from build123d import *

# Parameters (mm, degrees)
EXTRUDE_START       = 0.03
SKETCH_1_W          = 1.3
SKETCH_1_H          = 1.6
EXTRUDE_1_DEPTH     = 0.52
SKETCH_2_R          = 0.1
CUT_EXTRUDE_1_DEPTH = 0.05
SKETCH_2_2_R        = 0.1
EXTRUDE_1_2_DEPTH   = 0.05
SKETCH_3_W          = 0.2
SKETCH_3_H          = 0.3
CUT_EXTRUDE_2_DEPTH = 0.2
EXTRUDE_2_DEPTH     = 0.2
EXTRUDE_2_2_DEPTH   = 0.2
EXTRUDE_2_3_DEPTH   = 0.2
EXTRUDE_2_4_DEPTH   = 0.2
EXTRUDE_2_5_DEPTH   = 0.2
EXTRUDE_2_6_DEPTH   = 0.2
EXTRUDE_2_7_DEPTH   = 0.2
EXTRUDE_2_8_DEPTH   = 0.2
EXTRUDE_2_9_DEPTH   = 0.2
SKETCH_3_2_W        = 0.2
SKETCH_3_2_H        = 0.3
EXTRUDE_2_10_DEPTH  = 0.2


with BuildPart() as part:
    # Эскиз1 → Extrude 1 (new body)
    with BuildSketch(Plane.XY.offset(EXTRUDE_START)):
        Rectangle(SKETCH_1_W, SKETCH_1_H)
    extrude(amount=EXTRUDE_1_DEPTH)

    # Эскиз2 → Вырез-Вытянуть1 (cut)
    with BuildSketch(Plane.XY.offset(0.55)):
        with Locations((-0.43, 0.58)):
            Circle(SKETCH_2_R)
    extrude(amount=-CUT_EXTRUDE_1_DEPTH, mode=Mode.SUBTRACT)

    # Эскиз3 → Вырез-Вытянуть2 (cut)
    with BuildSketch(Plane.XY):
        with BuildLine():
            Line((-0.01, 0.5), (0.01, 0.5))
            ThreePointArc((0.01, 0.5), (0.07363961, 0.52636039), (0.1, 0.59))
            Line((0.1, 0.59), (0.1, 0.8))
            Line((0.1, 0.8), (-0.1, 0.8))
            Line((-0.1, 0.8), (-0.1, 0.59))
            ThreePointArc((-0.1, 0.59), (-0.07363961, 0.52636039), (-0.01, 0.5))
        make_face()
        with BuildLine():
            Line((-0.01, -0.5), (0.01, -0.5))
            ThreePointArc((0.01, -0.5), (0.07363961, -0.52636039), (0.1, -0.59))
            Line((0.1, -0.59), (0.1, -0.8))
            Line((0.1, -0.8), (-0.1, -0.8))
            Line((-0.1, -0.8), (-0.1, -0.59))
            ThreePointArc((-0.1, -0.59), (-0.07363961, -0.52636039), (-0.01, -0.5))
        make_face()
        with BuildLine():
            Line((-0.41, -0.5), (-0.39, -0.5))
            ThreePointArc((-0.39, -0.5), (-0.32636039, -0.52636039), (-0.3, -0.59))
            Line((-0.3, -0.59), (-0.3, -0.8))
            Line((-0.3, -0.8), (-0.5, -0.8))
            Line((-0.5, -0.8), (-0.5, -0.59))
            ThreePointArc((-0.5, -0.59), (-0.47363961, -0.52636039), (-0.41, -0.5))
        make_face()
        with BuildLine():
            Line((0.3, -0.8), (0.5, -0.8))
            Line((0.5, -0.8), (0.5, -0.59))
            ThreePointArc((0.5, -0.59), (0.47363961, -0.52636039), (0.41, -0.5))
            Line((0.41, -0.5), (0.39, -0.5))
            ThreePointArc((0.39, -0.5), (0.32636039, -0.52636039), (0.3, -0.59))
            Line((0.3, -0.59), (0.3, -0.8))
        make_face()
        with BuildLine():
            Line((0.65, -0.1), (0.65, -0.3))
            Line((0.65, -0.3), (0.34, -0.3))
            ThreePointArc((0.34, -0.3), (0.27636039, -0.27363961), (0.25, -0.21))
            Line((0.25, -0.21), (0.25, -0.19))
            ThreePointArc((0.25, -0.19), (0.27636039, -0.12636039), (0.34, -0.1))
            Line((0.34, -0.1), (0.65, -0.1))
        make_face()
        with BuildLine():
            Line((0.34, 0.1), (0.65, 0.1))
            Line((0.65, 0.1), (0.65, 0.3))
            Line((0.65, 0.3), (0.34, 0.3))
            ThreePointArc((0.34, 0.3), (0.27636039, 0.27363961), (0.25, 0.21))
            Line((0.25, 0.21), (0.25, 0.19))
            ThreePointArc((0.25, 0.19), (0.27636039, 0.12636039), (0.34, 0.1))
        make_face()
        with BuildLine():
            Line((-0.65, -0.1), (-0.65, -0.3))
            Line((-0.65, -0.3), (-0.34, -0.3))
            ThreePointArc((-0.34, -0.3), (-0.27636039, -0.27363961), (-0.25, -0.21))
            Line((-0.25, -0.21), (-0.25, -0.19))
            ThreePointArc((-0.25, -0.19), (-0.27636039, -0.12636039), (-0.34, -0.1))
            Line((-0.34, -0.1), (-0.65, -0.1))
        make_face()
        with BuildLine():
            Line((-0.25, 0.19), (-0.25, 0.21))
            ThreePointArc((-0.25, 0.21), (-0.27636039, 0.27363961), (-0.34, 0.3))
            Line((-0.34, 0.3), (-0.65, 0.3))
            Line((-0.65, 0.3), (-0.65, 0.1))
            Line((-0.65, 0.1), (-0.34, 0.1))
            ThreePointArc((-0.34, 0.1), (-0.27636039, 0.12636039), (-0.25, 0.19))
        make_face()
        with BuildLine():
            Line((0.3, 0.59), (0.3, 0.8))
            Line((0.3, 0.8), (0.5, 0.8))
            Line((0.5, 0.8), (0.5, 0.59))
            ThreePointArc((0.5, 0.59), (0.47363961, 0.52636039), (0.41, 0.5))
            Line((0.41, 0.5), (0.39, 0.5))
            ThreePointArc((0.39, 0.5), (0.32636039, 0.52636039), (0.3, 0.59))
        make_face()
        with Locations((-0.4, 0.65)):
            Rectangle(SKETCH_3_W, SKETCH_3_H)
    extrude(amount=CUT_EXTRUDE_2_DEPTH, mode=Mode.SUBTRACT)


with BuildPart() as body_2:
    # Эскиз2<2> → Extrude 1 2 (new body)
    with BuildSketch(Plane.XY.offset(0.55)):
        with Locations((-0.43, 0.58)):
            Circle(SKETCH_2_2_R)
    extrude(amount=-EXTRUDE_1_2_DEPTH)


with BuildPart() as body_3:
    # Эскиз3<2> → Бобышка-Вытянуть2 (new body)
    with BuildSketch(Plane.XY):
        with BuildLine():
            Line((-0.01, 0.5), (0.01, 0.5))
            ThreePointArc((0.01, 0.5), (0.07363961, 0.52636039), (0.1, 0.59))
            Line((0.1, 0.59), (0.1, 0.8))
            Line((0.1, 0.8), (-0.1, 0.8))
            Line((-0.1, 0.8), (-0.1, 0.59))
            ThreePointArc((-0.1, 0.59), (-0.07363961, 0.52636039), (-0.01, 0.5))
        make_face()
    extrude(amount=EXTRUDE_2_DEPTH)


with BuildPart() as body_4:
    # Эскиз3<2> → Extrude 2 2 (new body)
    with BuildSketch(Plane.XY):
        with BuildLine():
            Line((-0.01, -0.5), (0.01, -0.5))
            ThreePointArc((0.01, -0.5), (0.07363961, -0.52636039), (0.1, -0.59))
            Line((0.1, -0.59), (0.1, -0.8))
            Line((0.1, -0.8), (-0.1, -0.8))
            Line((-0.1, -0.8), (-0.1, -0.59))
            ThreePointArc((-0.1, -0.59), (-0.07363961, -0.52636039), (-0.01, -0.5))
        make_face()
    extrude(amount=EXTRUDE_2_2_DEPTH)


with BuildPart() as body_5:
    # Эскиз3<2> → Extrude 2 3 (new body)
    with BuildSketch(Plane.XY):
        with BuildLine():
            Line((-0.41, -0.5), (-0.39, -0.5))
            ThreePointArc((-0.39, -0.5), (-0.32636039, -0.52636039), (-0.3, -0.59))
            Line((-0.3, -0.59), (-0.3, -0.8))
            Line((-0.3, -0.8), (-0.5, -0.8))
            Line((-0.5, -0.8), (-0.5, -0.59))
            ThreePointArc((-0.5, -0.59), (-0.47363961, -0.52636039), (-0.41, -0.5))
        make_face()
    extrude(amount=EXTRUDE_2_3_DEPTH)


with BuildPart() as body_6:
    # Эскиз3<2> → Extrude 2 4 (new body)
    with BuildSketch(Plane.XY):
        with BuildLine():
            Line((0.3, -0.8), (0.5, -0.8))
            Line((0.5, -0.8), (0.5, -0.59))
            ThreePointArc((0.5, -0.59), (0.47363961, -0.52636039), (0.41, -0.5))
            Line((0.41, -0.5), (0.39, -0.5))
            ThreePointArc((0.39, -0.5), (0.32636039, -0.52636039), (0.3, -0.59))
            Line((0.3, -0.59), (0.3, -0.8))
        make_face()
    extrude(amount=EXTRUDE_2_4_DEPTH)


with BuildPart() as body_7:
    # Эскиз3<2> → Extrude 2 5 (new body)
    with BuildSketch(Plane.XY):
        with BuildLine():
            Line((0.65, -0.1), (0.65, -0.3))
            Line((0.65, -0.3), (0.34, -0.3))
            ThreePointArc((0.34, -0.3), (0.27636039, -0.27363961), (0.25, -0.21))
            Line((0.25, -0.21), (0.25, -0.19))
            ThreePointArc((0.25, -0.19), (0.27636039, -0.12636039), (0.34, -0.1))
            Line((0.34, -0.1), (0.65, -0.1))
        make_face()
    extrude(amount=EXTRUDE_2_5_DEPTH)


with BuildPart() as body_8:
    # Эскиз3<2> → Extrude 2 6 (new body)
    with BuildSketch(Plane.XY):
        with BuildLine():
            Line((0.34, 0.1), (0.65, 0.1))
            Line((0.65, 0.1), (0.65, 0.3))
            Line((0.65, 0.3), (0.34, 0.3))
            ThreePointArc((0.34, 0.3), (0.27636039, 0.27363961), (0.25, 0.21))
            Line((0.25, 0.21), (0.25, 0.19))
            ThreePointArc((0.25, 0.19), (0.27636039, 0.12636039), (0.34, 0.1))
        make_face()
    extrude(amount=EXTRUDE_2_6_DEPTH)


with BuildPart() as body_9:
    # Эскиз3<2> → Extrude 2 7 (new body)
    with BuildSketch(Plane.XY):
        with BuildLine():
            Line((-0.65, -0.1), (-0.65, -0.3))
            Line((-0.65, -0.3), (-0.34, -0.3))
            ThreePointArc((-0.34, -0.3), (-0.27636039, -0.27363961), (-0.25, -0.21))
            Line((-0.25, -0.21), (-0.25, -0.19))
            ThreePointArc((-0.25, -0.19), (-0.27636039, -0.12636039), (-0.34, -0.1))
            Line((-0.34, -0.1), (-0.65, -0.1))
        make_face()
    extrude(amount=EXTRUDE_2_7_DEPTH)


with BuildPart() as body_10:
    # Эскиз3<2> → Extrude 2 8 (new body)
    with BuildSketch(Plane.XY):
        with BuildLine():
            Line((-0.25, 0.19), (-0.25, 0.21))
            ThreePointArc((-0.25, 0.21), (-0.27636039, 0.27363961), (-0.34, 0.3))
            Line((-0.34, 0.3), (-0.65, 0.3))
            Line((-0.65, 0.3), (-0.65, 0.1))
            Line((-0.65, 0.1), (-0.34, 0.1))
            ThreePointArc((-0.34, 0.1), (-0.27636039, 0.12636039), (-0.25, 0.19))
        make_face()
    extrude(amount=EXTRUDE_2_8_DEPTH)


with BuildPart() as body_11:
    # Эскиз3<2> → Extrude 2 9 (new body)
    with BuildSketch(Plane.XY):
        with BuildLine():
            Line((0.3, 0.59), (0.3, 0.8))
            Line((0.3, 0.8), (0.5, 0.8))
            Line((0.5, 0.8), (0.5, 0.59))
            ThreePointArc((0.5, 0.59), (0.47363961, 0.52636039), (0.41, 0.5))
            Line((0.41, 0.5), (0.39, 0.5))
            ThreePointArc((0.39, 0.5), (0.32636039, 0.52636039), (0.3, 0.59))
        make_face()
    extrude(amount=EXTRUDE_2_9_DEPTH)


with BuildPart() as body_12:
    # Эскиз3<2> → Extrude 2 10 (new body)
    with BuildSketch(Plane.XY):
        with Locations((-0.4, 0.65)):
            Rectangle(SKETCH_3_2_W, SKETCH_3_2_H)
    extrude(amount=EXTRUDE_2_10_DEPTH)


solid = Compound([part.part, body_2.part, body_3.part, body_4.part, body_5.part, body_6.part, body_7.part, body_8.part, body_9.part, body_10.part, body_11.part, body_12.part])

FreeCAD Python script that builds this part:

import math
import FreeCAD as App
import Part
import Sketcher
Q = App.Units.Quantity


def add_polygon(sketch, points):
    """Adds a closed chain of lines whose ends are joined by coincident constraints."""
    first, n = sketch.GeometryCount, len(points)
    for a, b in zip(points, points[1:] + points[:1]):
        sketch.addGeometry(Part.LineSegment(App.Vector(*a, 0), App.Vector(*b, 0)), False)
    for i in range(n):
        sketch.addConstraint(Sketcher.Constraint("Coincident", first + i, 2, first + (i + 1) % n, 1))

doc = App.newDocument("Part")
params = doc.addObject("Spreadsheet::Sheet", "Params")
for row, (alias, value) in enumerate([
    ("sketch1_width", "1.3 mm"),
    ("sketch1_height", "1.6 mm"),
    ("pad1_length", "0.52 mm"),
    ("sketch2_diameter", "0.2 mm"),
    ("pocket1_length", "0.05 mm"),
    ("sketch3_radius", "0.09 mm"),
    ("sketch3_width", "0.2 mm"),
    ("sketch3_height", "0.3 mm"),
    ("sketch3_width2", "0.31 mm"),
    ("pocket2_length", "0.2 mm"),
    ("sketch4_diameter", "0.2 mm"),
    ("pad2_length", "0.05 mm"),
    ("sketch5_radius", "0.09 mm"),
    ("sketch5_width", "0.2 mm"),
    ("sketch5_height", "0.21 mm"),
    ("pad3_length", "0.2 mm"),
    ("sketch6_radius", "0.09 mm"),
    ("sketch6_width", "0.2 mm"),
    ("sketch6_height", "0.21 mm"),
    ("pad4_length", "0.2 mm"),
    ("sketch7_radius", "0.09 mm"),
    ("sketch7_width", "0.2 mm"),
    ("sketch7_height", "0.21 mm"),
    ("pad5_length", "0.2 mm"),
    ("sketch8_radius", "0.09 mm"),
    ("sketch8_width", "0.2 mm"),
    ("sketch8_height", "0.21 mm"),
    ("pad6_length", "0.2 mm"),
    ("sketch9_radius", "0.09 mm"),
    ("sketch9_height", "0.2 mm"),
    ("sketch9_width", "0.31 mm"),
    ("pad7_length", "0.2 mm"),
    ("sketch10_radius", "0.09 mm"),
    ("sketch10_height", "0.2 mm"),
    ("sketch10_width", "0.31 mm"),
    ("pad8_length", "0.2 mm"),
    ("sketch11_radius", "0.09 mm"),
    ("sketch11_height", "0.2 mm"),
    ("sketch11_width", "0.31 mm"),
    ("pad9_length", "0.2 mm"),
    ("sketch12_radius", "0.09 mm"),
    ("sketch12_height", "0.2 mm"),
    ("sketch12_width", "0.31 mm"),
    ("pad10_length", "0.2 mm"),
    ("sketch13_radius", "0.09 mm"),
    ("sketch13_width", "0.2 mm"),
    ("sketch13_height", "0.21 mm"),
    ("pad11_length", "0.2 mm"),
    ("sketch14_width", "0.2 mm"),
    ("sketch14_height", "0.3 mm"),
    ("pad12_length", "0.2 mm"),
], start=1):
    params.set(f"A{row}", alias)
    params.set(f"B{row}", "=" + value)
    params.setAlias(f"B{row}", alias)

body = doc.addObject("PartDesign::Body", "Body")

sketch1 = body.newObject("Sketcher::SketchObject", "Sketch")
sketch1.AttachmentSupport = (doc.getObject("XY_Plane"), [""])
sketch1.MapMode = "FlatFace"
sketch1.AttachmentOffset = App.Placement(App.Vector(0, 0, 0.03), App.Rotation())
add_polygon(sketch1, [(-0.7, 0.8), (-0.7, -0.8), (0.7, -0.8), (0.7, 0.8)])
sketch1.addConstraint(Sketcher.Constraint("Vertical", 0))
sketch1.addConstraint(Sketcher.Constraint("Horizontal", 1))
sketch1.addConstraint(Sketcher.Constraint("Vertical", 2))
sketch1.addConstraint(Sketcher.Constraint("Horizontal", 3))
sketch1.addConstraint(Sketcher.Constraint("Symmetric", 0, 2, 2, 2, -1, 1))
sketch1.addConstraint(Sketcher.Constraint("DistanceX", 1, 1, 1, 2, Q("1.3 mm")))
sketch1.addConstraint(Sketcher.Constraint("DistanceY", 0, 2, 0, 1, Q("1.6 mm")))
sketch1.setExpression("Constraints[9]", "Params.sketch1_width")
sketch1.setExpression("Constraints[10]", "Params.sketch1_height")
pad1 = body.newObject("PartDesign::Pad", "Pad")
pad1.Profile = sketch1
pad1.setExpression("Length", "Params.pad1_length")

sketch2 = body.newObject("Sketcher::SketchObject", "Sketch001")
sketch2.AttachmentSupport = (doc.getObject("XY_Plane"), [""])
sketch2.MapMode = "FlatFace"
sketch2.AttachmentOffset = App.Placement(App.Vector(0, 0, 0.55), App.Rotation())
sketch2.addGeometry(Part.Circle(App.Vector(-0.43, 0.58, 0), App.Vector(0, 0, 1), 0.1), False)
sketch2.addConstraint(Sketcher.Constraint("Diameter", 0, Q("0.2 mm")))
sketch2.addConstraint(Sketcher.Constraint("DistanceX", 0, 3, -1, 1, Q("0.43 mm")))
sketch2.addConstraint(Sketcher.Constraint("DistanceY", -1, 1, 0, 3, Q("0.58 mm")))
sketch2.setExpression("Constraints[0]", "Params.sketch2_diameter")
pocket1 = body.newObject("PartDesign::Pocket", "Pocket")
pocket1.Profile = sketch2
pocket1.setExpression("Length", "Params.pocket1_length")

sketch3 = body.newObject("Sketcher::SketchObject", "Sketch002")
sketch3.AttachmentSupport = (doc.getObject("XY_Plane"), [""])
sketch3.MapMode = "FlatFace"
sketch3.addGeometry(Part.LineSegment(App.Vector(-0.01, 0.5, 0), App.Vector(0.01, 0.5, 0)), False)
sketch3.addGeometry(Part.ArcOfCircle(Part.Circle(App.Vector(0.01, 0.59, 0), App.Vector(0, 0, 1), 0.09), math.radians(-90), math.radians(0)), False)
sketch3.addGeometry(Part.LineSegment(App.Vector(0.1, 0.59, 0), App.Vector(0.1, 0.8, 0)), False)
sketch3.addGeometry(Part.LineSegment(App.Vector(0.1, 0.8, 0), App.Vector(-0.1, 0.8, 0)), False)
sketch3.addGeometry(Part.LineSegment(App.Vector(-0.1, 0.8, 0), App.Vector(-0.1, 0.59, 0)), False)
sketch3.addGeometry(Part.ArcOfCircle(Part.Circle(App.Vector(-0.01, 0.59, 0), App.Vector(0, 0, 1), 0.09), math.radians(-180), math.radians(-90)), False)
sketch3.addGeometry(Part.LineSegment(App.Vector(0.01, -0.5, 0), App.Vector(-0.01, -0.5, 0)), False)
sketch3.addGeometry(Part.ArcOfCircle(Part.Circle(App.Vector(-0.01, -0.59, 0), App.Vector(0, 0, 1), 0.09), math.radians(90), math.radians(180)), False)
sketch3.addGeometry(Part.LineSegment(App.Vector(-0.1, -0.59, 0), App.Vector(-0.1, -0.8, 0)), False)
sketch3.addGeometry(Part.LineSegment(App.Vector(-0.1, -0.8, 0), App.Vector(0.1, -0.8, 0)), False)
sketch3.addGeometry(Part.LineSegment(App.Vector(0.1, -0.8, 0), App.Vector(0.1, -0.59, 0)), False)
sketch3.addGeometry(Part.ArcOfCircle(Part.Circle(App.Vector(0.01, -0.59, 0), App.Vector(0, 0, 1), 0.09), math.radians(0), math.radians(90)), False)
sketch3.addGeometry(Part.LineSegment(App.Vector(-0.39, -0.5, 0), App.Vector(-0.41, -0.5, 0)), False)
sketch3.addGeometry(Part.ArcOfCircle(Part.Circle(App.Vector(-0.41, -0.59, 0), App.Vector(0, 0, 1), 0.09), math.radians(90), math.radians(180)), False)
sketch3.addGeometry(Part.LineSegment(App.Vector(-0.5, -0.59, 0), App.Vector(-0.5, -0.8, 0)), False)
sketch3.addGeometry(Part.LineSegment(App.Vector(-0.5, -0.8, 0), App.Vector(-0.3, -0.8, 0)), False)
sketch3.addGeometry(Part.LineSegment(App.Vector(-0.3, -0.8, 0), App.Vector(-0.3, -0.59, 0)), False)
sketch3.addGeometry(Part.ArcOfCircle(Part.Circle(App.Vector(-0.39, -0.59, 0), App.Vector(0, 0, 1), 0.09), math.radians(0), math.radians(90)), False)
sketch3.addGeometry(Part.LineSegment(App.Vector(0.3, -0.8, 0), App.Vector(0.5, -0.8, 0)), False)
sketch3.addGeometry(Part.LineSegment(App.Vector(0.5, -0.8, 0), App.Vector(0.5, -0.59, 0)), False)
sketch3.addGeometry(Part.ArcOfCircle(Part.Circle(App.Vector(0.41, -0.59, 0), App.Vector(0, 0, 1), 0.09), math.radians(0), math.radians(90)), False)
sketch3.addGeometry(Part.LineSegment(App.Vector(0.41, -0.5, 0), App.Vector(0.39, -0.5, 0)), False)
sketch3.addGeometry(Part.ArcOfCircle(Part.Circle(App.Vector(0.39, -0.59, 0), App.Vector(0, 0, 1), 0.09), math.radians(90), math.radians(180)), False)
sketch3.addGeometry(Part.LineSegment(App.Vector(0.3, -0.59, 0), App.Vector(0.3, -0.8, 0)), False)
sketch3.addGeometry(Part.LineSegment(App.Vector(0.65, -0.3, 0), App.Vector(0.65, -0.1, 0)), False)
sketch3.addGeometry(Part.LineSegment(App.Vector(0.65, -0.1, 0), App.Vector(0.34, -0.1, 0)), False)
sketch3.addGeometry(Part.ArcOfCircle(Part.Circle(App.Vector(0.34, -0.19, 0), App.Vector(0, 0, 1), 0.09), math.radians(90), math.radians(180)), False)
sketch3.addGeometry(Part.LineSegment(App.Vector(0.25, -0.19, 0), App.Vector(0.25, -0.21, 0)), False)
sketch3.addGeometry(Part.ArcOfCircle(Part.Circle(App.Vector(0.34, -0.21, 0), App.Vector(0, 0, 1), 0.09), math.radians(-180), math.radians(-90)), False)
sketch3.addGeometry(Part.LineSegment(App.Vector(0.34, -0.3, 0), App.Vector(0.65, -0.3, 0)), False)
sketch3.addGeometry(Part.LineSegment(App.Vector(0.34, 0.1, 0), App.Vector(0.65, 0.1, 0)), False)
sketch3.addGeometry(Part.LineSegment(App.Vector(0.65, 0.1, 0), App.Vector(0.65, 0.3, 0)), False)
sketch3.addGeometry(Part.LineSegment(App.Vector(0.65, 0.3, 0), App.Vector(0.34, 0.3, 0)), False)
sketch3.addGeometry(Part.ArcOfCircle(Part.Circle(App.Vector(0.34, 0.21, 0), App.Vector(0, 0, 1), 0.09), math.radians(90), math.radians(180)), False)
sketch3.addGeometry(Part.LineSegment(App.Vector(0.25, 0.21, 0), App.Vector(0.25, 0.19, 0)), False)
sketch3.addGeometry(Part.ArcOfCircle(Part.Circle(App.Vector(0.34, 0.19, 0), App.Vector(0, 0, 1), 0.09), math.radians(-180), math.radians(-90)), False)
sketch3.addGeometry(Part.LineSegment(App.Vector(-0.65, -0.1, 0), App.Vector(-0.65, -0.3, 0)), False)
sketch3.addGeometry(Part.LineSegment(App.Vector(-0.65, -0.3, 0), App.Vector(-0.34, -0.3, 0)), False)
sketch3.addGeometry(Part.ArcOfCircle(Part.Circle(App.Vector(-0.34, -0.21, 0), App.Vector(0, 0, 1), 0.09), math.radians(-90), math.radians(0)), False)
sketch3.addGeometry(Part.LineSegment(App.Vector(-0.25, -0.21, 0), App.Vector(-0.25, -0.19, 0)), False)
sketch3.addGeometry(Part.ArcOfCircle(Part.Circle(App.Vector(-0.34, -0.19, 0), App.Vector(0, 0, 1), 0.09), math.radians(0), math.radians(90)), False)
sketch3.addGeometry(Part.LineSegment(App.Vector(-0.34, -0.1, 0), App.Vector(-0.65, -0.1, 0)), False)
sketch3.addGeometry(Part.LineSegment(App.Vector(-0.25, 0.19, 0), App.Vector(-0.25, 0.21, 0)), False)
sketch3.addGeometry(Part.ArcOfCircle(Part.Circle(App.Vector(-0.34, 0.21, 0), App.Vector(0, 0, 1), 0.09), math.radians(0), math.radians(90)), False)
sketch3.addGeometry(Part.LineSegment(App.Vector(-0.34, 0.3, 0), App.Vector(-0.65, 0.3, 0)), False)
sketch3.addGeometry(Part.LineSegment(App.Vector(-0.65, 0.3, 0), App.Vector(-0.65, 0.1, 0)), False)
sketch3.addGeometry(Part.LineSegment(App.Vector(-0.65, 0.1, 0), App.Vector(-0.34, 0.1, 0)), False)
sketch3.addGeometry(Part.ArcOfCircle(Part.Circle(App.Vector(-0.34, 0.19, 0), App.Vector(0, 0, 1), 0.09), math.radians(-90), math.radians(0)), False)
sketch3.addGeometry(Part.LineSegment(App.Vector(0.3, 0.8, 0), App.Vector(0.3, 0.59, 0)), False)
sketch3.addGeometry(Part.ArcOfCircle(Part.Circle(App.Vector(0.39, 0.59, 0), App.Vector(0, 0, 1), 0.09), math.radians(-180), math.radians(-90)), False)
sketch3.addGeometry(Part.LineSegment(App.Vector(0.39, 0.5, 0), App.Vector(0.41, 0.5, 0)), False)
sketch3.addGeometry(Part.ArcOfCircle(Part.Circle(App.Vector(0.41, 0.59, 0), App.Vector(0, 0, 1), 0.09), math.radians(-90), math.radians(0)), False)
sketch3.addGeometry(Part.LineSegment(App.Vector(0.5, 0.59, 0), App.Vector(0.5, 0.8, 0)), False)
sketch3.addGeometry(Part.LineSegment(App.Vector(0.5, 0.8, 0), App.Vector(0.3, 0.8, 0)), False)
add_polygon(sketch3, [(-0.5, 0.8), (-0.5, 0.5), (-0.3, 0.5), (-0.3, 0.8)])
sketch3.addConstraint(Sketcher.Constraint("Tangent", 0, 2, 1, 1))
sketch3.addConstraint(Sketcher.Constraint("Tangent", 1, 2, 2, 1))
sketch3.addConstraint(Sketcher.Constraint("Coincident", 2, 2, 3, 1))
sketch3.addConstraint(Sketcher.Constraint("Coincident", 3, 2, 4, 1))
sketch3.addConstraint(Sketcher.Constraint("Tangent", 4, 2, 5, 1))
sketch3.addConstraint(Sketcher.Constraint("Tangent", 5, 2, 0, 1))
sketch3.addConstraint(Sketcher.Constraint("Tangent", 6, 2, 7, 1))
sketch3.addConstraint(Sketcher.Constraint("Tangent", 7, 2, 8, 1))
sketch3.addConstraint(Sketcher.Constraint("Coincident", 8, 2, 9, 1))
sketch3.addConstraint(Sketcher.Constraint("Coincident", 9, 2, 10, 1))
sketch3.addConstraint(Sketcher.Constraint("Tangent", 10, 2, 11, 1))
sketch3.addConstraint(Sketcher.Constraint("Tangent", 11, 2, 6, 1))
sketch3.addConstraint(Sketcher.Constraint("Tangent", 12, 2, 13, 1))
sketch3.addConstraint(Sketcher.Constraint("Tangent", 13, 2, 14, 1))
sketch3.addConstraint(Sketcher.Constraint("Coincident", 14, 2, 15, 1))
sketch3.addConstraint(Sketcher.Constraint("Coincident", 15, 2, 16, 1))
sketch3.addConstraint(Sketcher.Constraint("Tangent", 16, 2, 17, 1))
sketch3.addConstraint(Sketcher.Constraint("Tangent", 17, 2, 12, 1))
sketch3.addConstraint(Sketcher.Constraint("Coincident", 18, 2, 19, 1))
sketch3.addConstraint(Sketcher.Constraint("Tangent", 19, 2, 20, 1))
sketch3.addConstraint(Sketcher.Constraint("Tangent", 20, 2, 21, 1))
sketch3.addConstraint(Sketcher.Constraint("Tangent", 21, 2, 22, 1))
sketch3.addConstraint(Sketcher.Constraint("Tangent", 22, 2, 23, 1))
sketch3.addConstraint(Sketcher.Constraint("Coincident", 23, 2, 18, 1))
sketch3.addConstraint(Sketcher.Constraint("Coincident", 24, 2, 25, 1))
sketch3.addConstraint(Sketcher.Constraint("Tangent", 25, 2, 26, 1))
sketch3.addConstraint(Sketcher.Constraint("Tangent", 26, 2, 27, 1))
sketch3.addConstraint(Sketcher.Constraint("Tangent", 27, 2, 28, 1))
sketch3.addConstraint(Sketcher.Constraint("Tangent", 28, 2, 29, 1))
sketch3.addConstraint(Sketcher.Constraint("Coincident", 29, 2, 24, 1))
sketch3.addConstraint(Sketcher.Constraint("Coincident", 30, 2, 31, 1))
sketch3.addConstraint(Sketcher.Constraint("Coincident", 31, 2, 32, 1))
sketch3.addConstraint(Sketcher.Constraint("Tangent", 32, 2, 33, 1))
sketch3.addConstraint(Sketcher.Constraint("Tangent", 33, 2, 34, 1))
sketch3.addConstraint(Sketcher.Constraint("Tangent", 34, 2, 35, 1))
sketch3.addConstraint(Sketcher.Constraint("Tangent", 35, 2, 30, 1))
sketch3.addConstraint(Sketcher.Constraint("Coincident", 36, 2, 37, 1))
sketch3.addConstraint(Sketcher.Constraint("Tangent", 37, 2, 38, 1))
sketch3.addConstraint(Sketcher.Constraint("Tangent", 38, 2, 39, 1))
sketch3.addConstraint(Sketcher.Constraint("Tangent", 39, 2, 40, 1))
sketch3.addConstraint(Sketcher.Constraint("Tangent", 40, 2, 41, 1))
sketch3.addConstraint(Sketcher.Constraint("Coincident", 41, 2, 36, 1))
sketch3.addConstraint(Sketcher.Constraint("Tangent", 42, 2, 43, 1))
sketch3.addConstraint(Sketcher.Constraint("Tangent", 43, 2, 44, 1))
sketch3.addConstraint(Sketcher.Constraint("Coincident", 44, 2, 45, 1))
sketch3.addConstraint(Sketcher.Constraint("Coincident", 45, 2, 46, 1))
sketch3.addConstraint(Sketcher.Constraint("Tangent", 46, 2, 47, 1))
sketch3.addConstraint(Sketcher.Constraint("Tangent", 47, 2, 42, 1))
sketch3.addConstraint(Sketcher.Constraint("Tangent", 48, 2, 49, 1))
sketch3.addConstraint(Sketcher.Constraint("Tangent", 49, 2, 50, 1))
sketch3.addConstraint(Sketcher.Constraint("Tangent", 50, 2, 51, 1))
sketch3.addConstraint(Sketcher.Constraint("Tangent", 51, 2, 52, 1))
sketch3.addConstraint(Sketcher.Constraint("Coincident", 52, 2, 53, 1))
sketch3.addConstraint(Sketcher.Constraint("Coincident", 53, 2, 48, 1))
sketch3.addConstraint(Sketcher.Constraint("Horizontal", 0))
sketch3.addConstraint(Sketcher.Constraint("Vertical", 2))
sketch3.addConstraint(Sketcher.Constraint("Horizontal", 3))
sketch3.addConstraint(Sketcher.Constraint("Vertical", 4))
sketch3.addConstraint(Sketcher.Constraint("Horizontal", 6))
sketch3.addConstraint(Sketcher.Constraint("Vertical", 8))
sketch3.addConstraint(Sketcher.Constraint("Horizontal", 9))
sketch3.addConstraint(Sketcher.Constraint("Vertical", 10))
sketch3.addConstraint(Sketcher.Constraint("Horizontal", 12))
sketch3.addConstraint(Sketcher.Constraint("Vertical", 14))
sketch3.addConstraint(Sketcher.Constraint("Horizontal", 15))
sketch3.addConstraint(Sketcher.Constraint("Vertical", 16))
sketch3.addConstraint(Sketcher.Constraint("Horizontal", 18))
sketch3.addConstraint(Sketcher.Constraint("Vertical", 19))
sketch3.addConstraint(Sketcher.Constraint("Horizontal", 21))
sketch3.addConstraint(Sketcher.Constraint("Vertical", 23))
sketch3.addConstraint(Sketcher.Constraint("Vertical", 24))
sketch3.addConstraint(Sketcher.Constraint("Horizontal", 25))
sketch3.addConstraint(Sketcher.Constraint("Vertical", 27))
sketch3.addConstraint(Sketcher.Constraint("Horizontal", 29))
sketch3.addConstraint(Sketcher.Constraint("Horizontal", 30))
sketch3.addConstraint(Sketcher.Constraint("Vertical", 31))
sketch3.addConstraint(Sketcher.Constraint("Horizontal", 32))
sketch3.addConstraint(Sketcher.Constraint("Vertical", 34))
sketch3.addConstraint(Sketcher.Constraint("Vertical", 36))
sketch3.addConstraint(Sketcher.Constraint("Horizontal", 37))
sketch3.addConstraint(Sketcher.Constraint("Vertical", 39))
sketch3.addConstraint(Sketcher.Constraint("Horizontal", 41))
sketch3.addConstraint(Sketcher.Constraint("Vertical", 42))
sketch3.addConstraint(Sketcher.Constraint("Horizontal", 44))
sketch3.addConstraint(Sketcher.Constraint("Vertical", 45))
sketch3.addConstraint(Sketcher.Constraint("Horizontal", 46))
sketch3.addConstraint(Sketcher.Constraint("Vertical", 48))
sketch3.addConstraint(Sketcher.Constraint("Horizontal", 50))
sketch3.addConstraint(Sketcher.Constraint("Vertical", 52))
sketch3.addConstraint(Sketcher.Constraint("Horizontal", 53))
sketch3.addConstraint(Sketcher.Constraint("Vertical", 54))
sketch3.addConstraint(Sketcher.Constraint("Horizontal", 55))
sketch3.addConstraint(Sketcher.Constraint("Vertical", 56))
sketch3.addConstraint(Sketcher.Constraint("Horizontal", 57))
sketch3.addConstraint(Sketcher.Constraint("Equal", 1, 5))
sketch3.addConstraint(Sketcher.Constraint("Equal", 5, 7))
sketch3.addConstraint(Sketcher.Constraint("Equal", 7, 11))
sketch3.addConstraint(Sketcher.Constraint("Equal", 11, 13))
sketch3.addConstraint(Sketcher.Constraint("Equal", 13, 17))
sketch3.addConstraint(Sketcher.Constraint("Equal", 17, 20))
sketch3.addConstraint(Sketcher.Constraint("Equal", 20, 22))
sketch3.addConstraint(Sketcher.Constraint("Equal", 22, 26))
sketch3.addConstraint(Sketcher.Constraint("Equal", 26, 28))
sketch3.addConstraint(Sketcher.Constraint("Equal", 28, 33))
sketch3.addConstraint(Sketcher.Constraint("Equal", 33, 35))
sketch3.addConstraint(Sketcher.Constraint("Equal", 35, 38))
sketch3.addConstraint(Sketcher.Constraint("Equal", 38, 40))
sketch3.addConstraint(Sketcher.Constraint("Equal", 40, 43))
sketch3.addConstraint(Sketcher.Constraint("Equal", 43, 47))
sketch3.addConstraint(Sketcher.Constraint("Equal", 47, 49))
sketch3.addConstraint(Sketcher.Constraint("Equal", 49, 51))
sketch3.addConstraint(Sketcher.Constraint("Symmetric", 1, 3, 7, 3, -1, 1))
sketch3.addConstraint(Sketcher.Constraint("Symmetric", 33, 3, 38, 3, -1, 1))
sketch3.addConstraint(Sketcher.Constraint("Symmetric", 28, 3, 43, 3, -1, 1))
sketch3.addConstraint(Sketcher.Constraint("Symmetric", 17, 3, 49, 3, -1, 1))
sketch3.addConstraint(Sketcher.Constraint("Symmetric", 3, 2, 9, 2, -1, 1))
sketch3.addConstraint(Sketcher.Constraint("Symmetric", 30, 2, 41, 2, -1, 1))
sketch3.addConstraint(Sketcher.Constraint("Symmetric", 24, 2, 45, 2, -1, 1))
sketch3.addConstraint(Sketcher.Constraint("Symmetric", 14, 2, 52, 2, -1, 1))
sketch3.addConstraint(Sketcher.Constraint("Symmetric", 23, 2, 56, 2, -1, 1))
sketch3.addConstraint(Sketcher.Constraint("Symmetric", 13, 3, 20, 3, -2))
sketch3.addConstraint(Sketcher.Constraint("Symmetric", 28, 3, 38, 3, -2))
sketch3.addConstraint(Sketcher.Constraint("Symmetric", 15, 2, 23, 2, -2))
sketch3.addConstraint(Sketcher.Constraint("Symmetric", 24, 2, 41, 2, -2))
sketch3.addConstraint(Sketcher.Constraint("Horizontal", 11, 3, 13, 3))
sketch3.addConstraint(Sketcher.Constraint("Horizontal", 9, 2, 14, 2))
sketch3.addConstraint(Sketcher.Constraint("Horizontal", 50, 2, 54, 2))
sketch3.addConstraint(Sketcher.Constraint("Vertical", 5, 3, 7, 3))
sketch3.addConstraint(Sketcher.Constraint("Vertical", 14, 2, 54, 2))
sketch3.addConstraint(Sketcher.Constraint("Equal", 6, 12))
sketch3.addConstraint(Sketcher.Constraint("Equal", 57, 24))
sketch3.addConstraint(Sketcher.Constraint("Radius", 1, Q("0.09 mm")))
sketch3.addConstraint(Sketcher.Constraint("DistanceX", 3, 2, 3, 1, Q("0.2 mm")))
sketch3.addConstraint(Sketcher.Constraint("DistanceY", 54, 2, 54, 1, Q("0.3 mm")))
sketch3.addConstraint(Sketcher.Constraint("DistanceX", 25, 2, 25, 1, Q("0.31 mm")))
sketch3.addConstraint(Sketcher.Constraint("DistanceY", -1, 1, 0, 2, Q("0.5 mm")))
sketch3.addConstraint(Sketcher.Constraint("DistanceX", 13, 2, -1, 1, Q("0.5 mm")))
sketch3.addConstraint(Sketcher.Constraint("DistanceY", 24, 2, -1, 1, Q("0.1 mm")))
sketch3.addConstraint(Sketcher.Constraint("DistanceX", -1, 1, 26, 3, Q("0.34 mm")))
sketch3.setExpression("Constraints[135]", "Params.sketch3_radius")
sketch3.setExpression("Constraints[136]", "Params.sketch3_width")
sketch3.setExpression("Constraints[137]", "Params.sketch3_height")
sketch3.setExpression("Constraints[138]", "Params.sketch3_width2")
pocket2 = body.newObject("PartDesign::Pocket", "Pocket001")
pocket2.Profile = sketch3
pocket2.setExpression("Length", "Params.pocket2_length")
pocket2.Reversed = True
body2 = doc.addObject("PartDesign::Body", "Body001")

sketch4 = body2.newObject("Sketcher::SketchObject", "Sketch003")
sketch4.AttachmentSupport = (doc.getObject("XY_Plane001"), [""])
sketch4.MapMode = "FlatFace"
sketch4.AttachmentOffset = App.Placement(App.Vector(0, 0, 0.55), App.Rotation())
sketch4.addGeometry(Part.Circle(App.Vector(-0.43, 0.58, 0), App.Vector(0, 0, 1), 0.1), False)
sketch4.addConstraint(Sketcher.Constraint("Diameter", 0, Q("0.2 mm")))
sketch4.addConstraint(Sketcher.Constraint("DistanceX", 0, 3, -1, 1, Q("0.43 mm")))
sketch4.addConstraint(Sketcher.Constraint("DistanceY", -1, 1, 0, 3, Q("0.58 mm")))
sketch4.setExpression("Constraints[0]", "Params.sketch4_diameter")
pad2 = body2.newObject("PartDesign::Pad", "Pad001")
pad2.Profile = sketch4
pad2.setExpression("Length", "Params.pad2_length")
pad2.Reversed = True
body3 = doc.addObject("PartDesign::Body", "Body002")

sketch5 = body3.newObject("Sketcher::SketchObject", "Sketch004")
sketch5.AttachmentSupport = (doc.getObject("XY_Plane002"), [""])
sketch5.MapMode = "FlatFace"
sketch5.addGeometry(Part.LineSegment(App.Vector(-0.01, 0.5, 0), App.Vector(0.01, 0.5, 0)), False)
sketch5.addGeometry(Part.ArcOfCircle(Part.Circle(App.Vector(0.01, 0.59, 0), App.Vector(0, 0, 1), 0.09), math.radians(-90), math.radians(0)), False)
sketch5.addGeometry(Part.LineSegment(App.Vector(0.1, 0.59, 0), App.Vector(0.1, 0.8, 0)), False)
sketch5.addGeometry(Part.LineSegment(App.Vector(0.1, 0.8, 0), App.Vector(-0.1, 0.8, 0)), False)
sketch5.addGeometry(Part.LineSegment(App.Vector(-0.1, 0.8, 0), App.Vector(-0.1, 0.59, 0)), False)
sketch5.addGeometry(Part.ArcOfCircle(Part.Circle(App.Vector(-0.01, 0.59, 0), App.Vector(0, 0, 1), 0.09), math.radians(-180), math.radians(-90)), False)
sketch5.addConstraint(Sketcher.Constraint("Tangent", 0, 2, 1, 1))
sketch5.addConstraint(Sketcher.Constraint("Tangent", 1, 2, 2, 1))
sketch5.addConstraint(Sketcher.Constraint("Coincident", 2, 2, 3, 1))
sketch5.addConstraint(Sketcher.Constraint("Coincident", 3, 2, 4, 1))
sketch5.addConstraint(Sketcher.Constraint("Tangent", 4, 2, 5, 1))
sketch5.addConstraint(Sketcher.Constraint("Tangent", 5, 2, 0, 1))
sketch5.addConstraint(Sketcher.Constraint("Horizontal", 0))
sketch5.addConstraint(Sketcher.Constraint("Vertical", 2))
sketch5.addConstraint(Sketcher.Constraint("Horizontal", 3))
sketch5.addConstraint(Sketcher.Constraint("Vertical", 4))
sketch5.addConstraint(Sketcher.Constraint("Equal", 1, 5))
sketch5.addConstraint(Sketcher.Constraint("Radius", 1, Q("0.09 mm")))
sketch5.addConstraint(Sketcher.Constraint("DistanceX", 3, 2, 3, 1, Q("0.2 mm")))
sketch5.addConstraint(Sketcher.Constraint("DistanceY", 2, 1, 2, 2, Q("0.21 mm")))
sketch5.addConstraint(Sketcher.Constraint("DistanceY", -1, 1, 0, 2, Q("0.5 mm")))
sketch5.addConstraint(Sketcher.Constraint("DistanceX", -1, 1, 1, 2, Q("0.1 mm")))
sketch5.setExpression("Constraints[11]", "Params.sketch5_radius")
sketch5.setExpression("Constraints[12]", "Params.sketch5_width")
sketch5.setExpression("Constraints[13]", "Params.sketch5_height")
pad3 = body3.newObject("PartDesign::Pad", "Pad002")
pad3.Profile = sketch5
pad3.setExpression("Length", "Params.pad3_length")
body4 = doc.addObject("PartDesign::Body", "Body003")

sketch6 = body4.newObject("Sketcher::SketchObject", "Sketch005")
sketch6.AttachmentSupport = (doc.getObject("XY_Plane003"), [""])
sketch6.MapMode = "FlatFace"
sketch6.addGeometry(Part.LineSegment(App.Vector(0.01, -0.5, 0), App.Vector(-0.01, -0.5, 0)), False)
sketch6.addGeometry(Part.ArcOfCircle(Part.Circle(App.Vector(-0.01, -0.59, 0), App.Vector(0, 0, 1), 0.09), math.radians(90), math.radians(180)), False)
sketch6.addGeometry(Part.LineSegment(App.Vector(-0.1, -0.59, 0), App.Vector(-0.1, -0.8, 0)), False)
sketch6.addGeometry(Part.LineSegment(App.Vector(-0.1, -0.8, 0), App.Vector(0.1, -0.8, 0)), False)
sketch6.addGeometry(Part.LineSegment(App.Vector(0.1, -0.8, 0), App.Vector(0.1, -0.59, 0)), False)
sketch6.addGeometry(Part.ArcOfCircle(Part.Circle(App.Vector(0.01, -0.59, 0), App.Vector(0, 0, 1), 0.09), math.radians(0), math.radians(90)), False)
sketch6.addConstraint(Sketcher.Constraint("Tangent", 0, 2, 1, 1))
sketch6.addConstraint(Sketcher.Constraint("Tangent", 1, 2, 2, 1))
sketch6.addConstraint(Sketcher.Constraint("Coincident", 2, 2, 3, 1))
sketch6.addConstraint(Sketcher.Constraint("Coincident", 3, 2, 4, 1))
sketch6.addConstraint(Sketcher.Constraint("Tangent", 4, 2, 5, 1))
sketch6.addConstraint(Sketcher.Constraint("Tangent", 5, 2, 0, 1))
sketch6.addConstraint(Sketcher.Constraint("Horizontal", 0))
sketch6.addConstraint(Sketcher.Constraint("Vertical", 2))
sketch6.addConstraint(Sketcher.Constraint("Horizontal", 3))
sketch6.addConstraint(Sketcher.Constraint("Vertical", 4))
sketch6.addConstraint(Sketcher.Constraint("Equal", 1, 5))
sketch6.addConstraint(Sketcher.Constraint("Radius", 1, Q("0.09 mm")))
sketch6.addConstraint(Sketcher.Constraint("DistanceX", 3, 1, 3, 2, Q("0.2 mm")))
sketch6.addConstraint(Sketcher.Constraint("DistanceY", 2, 2, 2, 1, Q("0.21 mm")))
sketch6.addConstraint(Sketcher.Constraint("DistanceY", 0, 2, -1, 1, Q("0.5 mm")))
sketch6.addConstraint(Sketcher.Constraint("DistanceX", 1, 2, -1, 1, Q("0.1 mm")))
sketch6.setExpression("Constraints[11]", "Params.sketch6_radius")
sketch6.setExpression("Constraints[12]", "Params.sketch6_width")
sketch6.setExpression("Constraints[13]", "Params.sketch6_height")
pad4 = body4.newObject("PartDesign::Pad", "Pad003")
pad4.Profile = sketch6
pad4.setExpression("Length", "Params.pad4_length")
body5 = doc.addObject("PartDesign::Body", "Body004")

sketch7 = body5.newObject("Sketcher::SketchObject", "Sketch006")
sketch7.AttachmentSupport = (doc.getObject("XY_Plane004"), [""])
sketch7.MapMode = "FlatFace"
sketch7.addGeometry(Part.LineSegment(App.Vector(-0.39, -0.5, 0), App.Vector(-0.41, -0.5, 0)), False)
sketch7.addGeometry(Part.ArcOfCircle(Part.Circle(App.Vector(-0.41, -0.59, 0), App.Vector(0, 0, 1), 0.09), math.radians(90), math.radians(180)), False)
sketch7.addGeometry(Part.LineSegment(App.Vector(-0.5, -0.59, 0), App.Vector(-0.5, -0.8, 0)), False)
sketch7.addGeometry(Part.LineSegment(App.Vector(-0.5, -0.8, 0), App.Vector(-0.3, -0.8, 0)), False)
sketch7.addGeometry(Part.LineSegment(App.Vector(-0.3, -0.8, 0), App.Vector(-0.3, -0.59, 0)), False)
sketch7.addGeometry(Part.ArcOfCircle(Part.Circle(App.Vector(-0.39, -0.59, 0), App.Vector(0, 0, 1), 0.09), math.radians(0), math.radians(90)), False)
sketch7.addConstraint(Sketcher.Constraint("Tangent", 0, 2, 1, 1))
sketch7.addConstraint(Sketcher.Constraint("Tangent", 1, 2, 2, 1))
sketch7.addConstraint(Sketcher.Constraint("Coincident", 2, 2, 3, 1))
sketch7.addConstraint(Sketcher.Constraint("Coincident", 3, 2, 4, 1))
sketch7.addConstraint(Sketcher.Constraint("Tangent", 4, 2, 5, 1))
sketch7.addConstraint(Sketcher.Constraint("Tangent", 5, 2, 0, 1))
sketch7.addConstraint(Sketcher.Constraint("Horizontal", 0))
sketch7.addConstraint(Sketcher.Constraint("Vertical", 2))
sketch7.addConstraint(Sketcher.Constraint("Horizontal", 3))
sketch7.addConstraint(Sketcher.Constraint("Vertical", 4))
sketch7.addConstraint(Sketcher.Constraint("Equal", 1, 5))
sketch7.addConstraint(Sketcher.Constraint("Radius", 1, Q("0.09 mm")))
sketch7.addConstraint(Sketcher.Constraint("DistanceX", 3, 1, 3, 2, Q("0.2 mm")))
sketch7.addConstraint(Sketcher.Constraint("DistanceY", 2, 2, 2, 1, Q("0.21 mm")))
sketch7.addConstraint(Sketcher.Constraint("DistanceY", 0, 2, -1, 1, Q("0.5 mm")))
sketch7.addConstraint(Sketcher.Constraint("DistanceX", 1, 2, -1, 1, Q("0.5 mm")))
sketch7.setExpression("Constraints[11]", "Params.sketch7_radius")
sketch7.setExpression("Constraints[12]", "Params.sketch7_width")
sketch7.setExpression("Constraints[13]", "Params.sketch7_height")
pad5 = body5.newObject("PartDesign::Pad", "Pad004")
pad5.Profile = sketch7
pad5.setExpression("Length", "Params.pad5_length")
body6 = doc.addObject("PartDesign::Body", "Body005")

sketch8 = body6.newObject("Sketcher::SketchObject", "Sketch007")
sketch8.AttachmentSupport = (doc.getObject("XY_Plane005"), [""])
sketch8.MapMode = "FlatFace"
sketch8.addGeometry(Part.LineSegment(App.Vector(0.3, -0.8, 0), App.Vector(0.5, -0.8, 0)), False)
sketch8.addGeometry(Part.LineSegment(App.Vector(0.5, -0.8, 0), App.Vector(0.5, -0.59, 0)), False)
sketch8.addGeometry(Part.ArcOfCircle(Part.Circle(App.Vector(0.41, -0.59, 0), App.Vector(0, 0, 1), 0.09), math.radians(0), math.radians(90)), False)
sketch8.addGeometry(Part.LineSegment(App.Vector(0.41, -0.5, 0), App.Vector(0.39, -0.5, 0)), False)
sketch8.addGeometry(Part.ArcOfCircle(Part.Circle(App.Vector(0.39, -0.59, 0), App.Vector(0, 0, 1), 0.09), math.radians(90), math.radians(180)), False)
sketch8.addGeometry(Part.LineSegment(App.Vector(0.3, -0.59, 0), App.Vector(0.3, -0.8, 0)), False)
sketch8.addConstraint(Sketcher.Constraint("Coincident", 0, 2, 1, 1))
sketch8.addConstraint(Sketcher.Constraint("Tangent", 1, 2, 2, 1))
sketch8.addConstraint(Sketcher.Constraint("Tangent", 2, 2, 3, 1))
sketch8.addConstraint(Sketcher.Constraint("Tangent", 3, 2, 4, 1))
sketch8.addConstraint(Sketcher.Constraint("Tangent", 4, 2, 5, 1))
sketch8.addConstraint(Sketcher.Constraint("Coincident", 5, 2, 0, 1))
sketch8.addConstraint(Sketcher.Constraint("Horizontal", 0))
sketch8.addConstraint(Sketcher.Constraint("Vertical", 1))
sketch8.addConstraint(Sketcher.Constraint("Horizontal", 3))
sketch8.addConstraint(Sketcher.Constraint("Vertical", 5))
sketch8.addConstraint(Sketcher.Constraint("Equal", 2, 4))
sketch8.addConstraint(Sketcher.Constraint("Radius", 2, Q("0.09 mm")))
sketch8.addConstraint(Sketcher.Constraint("DistanceX", 0, 1, 0, 2, Q("0.2 mm")))
sketch8.addConstraint(Sketcher.Constraint("DistanceY", 1, 1, 1, 2, Q("0.21 mm")))
sketch8.addConstraint(Sketcher.Constraint("DistanceX", -1, 1, 0, 2, Q("0.5 mm")))
sketch8.addConstraint(Sketcher.Constraint("DistanceY", 0, 2, -1, 1, Q("0.8 mm")))
sketch8.setExpression("Constraints[11]", "Params.sketch8_radius")
sketch8.setExpression("Constraints[12]", "Params.sketch8_width")
sketch8.setExpression("Constraints[13]", "Params.sketch8_height")
pad6 = body6.newObject("PartDesign::Pad", "Pad005")
pad6.Profile = sketch8
pad6.setExpression("Length", "Params.pad6_length")
body7 = doc.addObject("PartDesign::Body", "Body006")

sketch9 = body7.newObject("Sketcher::SketchObject", "Sketch008")
sketch9.AttachmentSupport = (doc.getObject("XY_Plane006"), [""])
sketch9.MapMode = "FlatFace"
sketch9.addGeometry(Part.LineSegment(App.Vector(0.65, -0.3, 0), App.Vector(0.65, -0.1, 0)), False)
sketch9.addGeometry(Part.LineSegment(App.Vector(0.65, -0.1, 0), App.Vector(0.34, -0.1, 0)), False)
sketch9.addGeometry(Part.ArcOfCircle(Part.Circle(App.Vector(0.34, -0.19, 0), App.Vector(0, 0, 1), 0.09), math.radians(90), math.radians(180)), False)
sketch9.addGeometry(Part.LineSegment(App.Vector(0.25, -0.19, 0), App.Vector(0.25, -0.21, 0)), False)
sketch9.addGeometry(Part.ArcOfCircle(Part.Circle(App.Vector(0.34, -0.21, 0), App.Vector(0, 0, 1), 0.09), math.radians(-180), math.radians(-90)), False)
sketch9.addGeometry(Part.LineSegment(App.Vector(0.34, -0.3, 0), App.Vector(0.65, -0.3, 0)), False)
sketch9.addConstraint(Sketcher.Constraint("Coincident", 0, 2, 1, 1))
sketch9.addConstraint(Sketcher.Constraint("Tangent", 1, 2, 2, 1))
sketch9.addConstraint(Sketcher.Constraint("Tangent", 2, 2, 3, 1))
sketch9.addConstraint(Sketcher.Constraint("Tangent", 3, 2, 4, 1))
sketch9.addConstraint(Sketcher.Constraint("Tangent", 4, 2, 5, 1))
sketch9.addConstraint(Sketcher.Constraint("Coincident", 5, 2, 0, 1))
sketch9.addConstraint(Sketcher.Constraint("Vertical", 0))
sketch9.addConstraint(Sketcher.Constraint("Horizontal", 1))
sketch9.addConstraint(Sketcher.Constraint("Vertical", 3))
sketch9.addConstraint(Sketcher.Constraint("Horizontal", 5))
sketch9.addConstraint(Sketcher.Constraint("Equal", 2, 4))
sketch9.addConstraint(Sketcher.Constraint("Radius", 2, Q("0.09 mm")))
sketch9.addConstraint(Sketcher.Constraint("DistanceY", 0, 1, 0, 2, Q("0.2 mm")))
sketch9.addConstraint(Sketcher.Constraint("DistanceX", 1, 2, 1, 1, Q("0.31 mm")))
sketch9.addConstraint(Sketcher.Constraint("DistanceY", 0, 2, -1, 1, Q("0.1 mm")))
sketch9.addConstraint(Sketcher.Constraint("DistanceX", -1, 1, 2, 3, Q("0.34 mm")))
sketch9.setExpression("Constraints[11]", "Params.sketch9_radius")
sketch9.setExpression("Constraints[12]", "Params.sketch9_height")
sketch9.setExpression("Constraints[13]", "Params.sketch9_width")
pad7 = body7.newObject("PartDesign::Pad", "Pad006")
pad7.Profile = sketch9
pad7.setExpression("Length", "Params.pad7_length")
body8 = doc.addObject("PartDesign::Body", "Body007")

sketch10 = body8.newObject("Sketcher::SketchObject", "Sketch009")
sketch10.AttachmentSupport = (doc.getObject("XY_Plane007"), [""])
sketch10.MapMode = "FlatFace"
sketch10.addGeometry(Part.LineSegment(App.Vector(0.34, 0.1, 0), App.Vector(0.65, 0.1, 0)), False)
sketch10.addGeometry(Part.LineSegment(App.Vector(0.65, 0.1, 0), App.Vector(0.65, 0.3, 0)), False)
sketch10.addGeometry(Part.LineSegment(App.Vector(0.65, 0.3, 0), App.Vector(0.34, 0.3, 0)), False)
sketch10.addGeometry(Part.ArcOfCircle(Part.Circle(App.Vector(0.34, 0.21, 0), App.Vector(0, 0, 1), 0.09), math.radians(90), math.radians(180)), False)
sketch10.addGeometry(Part.LineSegment(App.Vector(0.25, 0.21, 0), App.Vector(0.25, 0.19, 0)), False)
sketch10.addGeometry(Part.ArcOfCircle(Part.Circle(App.Vector(0.34, 0.19, 0), App.Vector(0, 0, 1), 0.09), math.radians(-180), math.radians(-90)), False)
sketch10.addConstraint(Sketcher.Constraint("Coincident", 0, 2, 1, 1))
sketch10.addConstraint(Sketcher.Constraint("Coincident", 1, 2, 2, 1))
sketch10.addConstraint(Sketcher.Constraint("Tangent", 2, 2, 3, 1))
sketch10.addConstraint(Sketcher.Constraint("Tangent", 3, 2, 4, 1))
sketch10.addConstraint(Sketcher.Constraint("Tangent", 4, 2, 5, 1))
sketch10.addConstraint(Sketcher.Constraint("Tangent", 5, 2, 0, 1))
sketch10.addConstraint(Sketcher.Constraint("Horizontal", 0))
sketch10.addConstraint(Sketcher.Constraint("Vertical", 1))
sketch10.addConstraint(Sketcher.Constraint("Horizontal", 2))
sketch10.addConstraint(Sketcher.Constraint("Vertical", 4))
sketch10.addConstraint(Sketcher.Constraint("Equal", 3, 5))
sketch10.addConstraint(Sketcher.Constraint("Radius", 3, Q("0.09 mm")))
sketch10.addConstraint(Sketcher.Constraint("DistanceY", 1, 1, 1, 2, Q("0.2 mm")))
sketch10.addConstraint(Sketcher.Constraint("DistanceX", 0, 1, 0, 2, Q("0.31 mm")))
sketch10.addConstraint(Sketcher.Constraint("DistanceY", -1, 1, 0, 2, Q("0.1 mm")))
sketch10.addConstraint(Sketcher.Constraint("DistanceX", -1, 1, 3, 3, Q("0.34 mm")))
sketch10.setExpression("Constraints[11]", "Params.sketch10_radius")
sketch10.setExpression("Constraints[12]", "Params.sketch10_height")
sketch10.setExpression("Constraints[13]", "Params.sketch10_width")
pad8 = body8.newObject("PartDesign::Pad", "Pad007")
pad8.Profile = sketch10
pad8.setExpression("Length", "Params.pad8_length")
body9 = doc.addObject("PartDesign::Body", "Body008")

sketch11 = body9.newObject("Sketcher::SketchObject", "Sketch010")
sketch11.AttachmentSupport = (doc.getObject("XY_Plane008"), [""])
sketch11.MapMode = "FlatFace"
sketch11.addGeometry(Part.LineSegment(App.Vector(-0.65, -0.1, 0), App.Vector(-0.65, -0.3, 0)), False)
sketch11.addGeometry(Part.LineSegment(App.Vector(-0.65, -0.3, 0), App.Vector(-0.34, -0.3, 0)), False)
sketch11.addGeometry(Part.ArcOfCircle(Part.Circle(App.Vector(-0.34, -0.21, 0), App.Vector(0, 0, 1), 0.09), math.radians(-90), math.radians(0)), False)
sketch11.addGeometry(Part.LineSegment(App.Vector(-0.25, -0.21, 0), App.Vector(-0.25, -0.19, 0)), False)
sketch11.addGeometry(Part.ArcOfCircle(Part.Circle(App.Vector(-0.34, -0.19, 0), App.Vector(0, 0, 1), 0.09), math.radians(0), math.radians(90)), False)
sketch11.addGeometry(Part.LineSegment(App.Vector(-0.34, -0.1, 0), App.Vector(-0.65, -0.1, 0)), False)
sketch11.addConstraint(Sketcher.Constraint("Coincident", 0, 2, 1, 1))
sketch11.addConstraint(Sketcher.Constraint("Tangent", 1, 2, 2, 1))
sketch11.addConstraint(Sketcher.Constraint("Tangent", 2, 2, 3, 1))
sketch11.addConstraint(Sketcher.Constraint("Tangent", 3, 2, 4, 1))
sketch11.addConstraint(Sketcher.Constraint("Tangent", 4, 2, 5, 1))
sketch11.addConstraint(Sketcher.Constraint("Coincident", 5, 2, 0, 1))
sketch11.addConstraint(Sketcher.Constraint("Vertical", 0))
sketch11.addConstraint(Sketcher.Constraint("Horizontal", 1))
sketch11.addConstraint(Sketcher.Constraint("Vertical", 3))
sketch11.addConstraint(Sketcher.Constraint("Horizontal", 5))
sketch11.addConstraint(Sketcher.Constraint("Equal", 2, 4))
sketch11.addConstraint(Sketcher.Constraint("Radius", 2, Q("0.09 mm")))
sketch11.addConstraint(Sketcher.Constraint("DistanceY", 0, 2, 0, 1, Q("0.2 mm")))
sketch11.addConstraint(Sketcher.Constraint("DistanceX", 1, 1, 1, 2, Q("0.31 mm")))
sketch11.addConstraint(Sketcher.Constraint("DistanceY", 0, 2, -1, 1, Q("0.3 mm")))
sketch11.addConstraint(Sketcher.Constraint("DistanceX", 2, 3, -1, 1, Q("0.34 mm")))
sketch11.setExpression("Constraints[11]", "Params.sketch11_radius")
sketch11.setExpression("Constraints[12]", "Params.sketch11_height")
sketch11.setExpression("Constraints[13]", "Params.sketch11_width")
pad9 = body9.newObject("PartDesign::Pad", "Pad008")
pad9.Profile = sketch11
pad9.setExpression("Length", "Params.pad9_length")
body10 = doc.addObject("PartDesign::Body", "Body009")

sketch12 = body10.newObject("Sketcher::SketchObject", "Sketch011")
sketch12.AttachmentSupport = (doc.getObject("XY_Plane009"), [""])
sketch12.MapMode = "FlatFace"
sketch12.addGeometry(Part.LineSegment(App.Vector(-0.25, 0.19, 0), App.Vector(-0.25, 0.21, 0)), False)
sketch12.addGeometry(Part.ArcOfCircle(Part.Circle(App.Vector(-0.34, 0.21, 0), App.Vector(0, 0, 1), 0.09), math.radians(0), math.radians(90)), False)
sketch12.addGeometry(Part.LineSegment(App.Vector(-0.34, 0.3, 0), App.Vector(-0.65, 0.3, 0)), False)
sketch12.addGeometry(Part.LineSegment(App.Vector(-0.65, 0.3, 0), App.Vector(-0.65, 0.1, 0)), False)
sketch12.addGeometry(Part.LineSegment(App.Vector(-0.65, 0.1, 0), App.Vector(-0.34, 0.1, 0)), False)
sketch12.addGeometry(Part.ArcOfCircle(Part.Circle(App.Vector(-0.34, 0.19, 0), App.Vector(0, 0, 1), 0.09), math.radians(-90), math.radians(0)), False)
sketch12.addConstraint(Sketcher.Constraint("Tangent", 0, 2, 1, 1))
sketch12.addConstraint(Sketcher.Constraint("Tangent", 1, 2, 2, 1))
sketch12.addConstraint(Sketcher.Constraint("Coincident", 2, 2, 3, 1))
sketch12.addConstraint(Sketcher.Constraint("Coincident", 3, 2, 4, 1))
sketch12.addConstraint(Sketcher.Constraint("Tangent", 4, 2, 5, 1))
sketch12.addConstraint(Sketcher.Constraint("Tangent", 5, 2, 0, 1))
sketch12.addConstraint(Sketcher.Constraint("Vertical", 0))
sketch12.addConstraint(Sketcher.Constraint("Horizontal", 2))
sketch12.addConstraint(Sketcher.Constraint("Vertical", 3))
sketch12.addConstraint(Sketcher.Constraint("Horizontal", 4))
sketch12.addConstraint(Sketcher.Constraint("Equal", 1, 5))
sketch12.addConstraint(Sketcher.Constraint("Radius", 1, Q("0.09 mm")))
sketch12.addConstraint(Sketcher.Constraint("DistanceY", 3, 2, 3, 1, Q("0.2 mm")))
sketch12.addConstraint(Sketcher.Constraint("DistanceX", 2, 2, 2, 1, Q("0.31 mm")))
sketch12.addConstraint(Sketcher.Constraint("DistanceY", -1, 1, 1, 2, Q("0.3 mm")))
sketch12.addConstraint(Sketcher.Constraint("DistanceX", 1, 3, -1, 1, Q("0.34 mm")))
sketch12.setExpression("Constraints[11]", "Params.sketch12_radius")
sketch12.setExpression("Constraints[12]", "Params.sketch12_height")
sketch12.setExpression("Constraints[13]", "Params.sketch12_width")
pad10 = body10.newObject("PartDesign::Pad", "Pad009")
pad10.Profile = sketch12
pad10.setExpression("Length", "Params.pad10_length")
body11 = doc.addObject("PartDesign::Body", "Body010")

sketch13 = body11.newObject("Sketcher::SketchObject", "Sketch012")
sketch13.AttachmentSupport = (doc.getObject("XY_Plane010"), [""])
sketch13.MapMode = "FlatFace"
sketch13.addGeometry(Part.LineSegment(App.Vector(0.3, 0.8, 0), App.Vector(0.3, 0.59, 0)), False)
sketch13.addGeometry(Part.ArcOfCircle(Part.Circle(App.Vector(0.39, 0.59, 0), App.Vector(0, 0, 1), 0.09), math.radians(-180), math.radians(-90)), False)
sketch13.addGeometry(Part.LineSegment(App.Vector(0.39, 0.5, 0), App.Vector(0.41, 0.5, 0)), False)
sketch13.addGeometry(Part.ArcOfCircle(Part.Circle(App.Vector(0.41, 0.59, 0), App.Vector(0, 0, 1), 0.09), math.radians(-90), math.radians(0)), False)
sketch13.addGeometry(Part.LineSegment(App.Vector(0.5, 0.59, 0), App.Vector(0.5, 0.8, 0)), False)
sketch13.addGeometry(Part.LineSegment(App.Vector(0.5, 0.8, 0), App.Vector(0.3, 0.8, 0)), False)
sketch13.addConstraint(Sketcher.Constraint("Tangent", 0, 2, 1, 1))
sketch13.addConstraint(Sketcher.Constraint("Tangent", 1, 2, 2, 1))
sketch13.addConstraint(Sketcher.Constraint("Tangent", 2, 2, 3, 1))
sketch13.addConstraint(Sketcher.Constraint("Tangent", 3, 2, 4, 1))
sketch13.addConstraint(Sketcher.Constraint("Coincident", 4, 2, 5, 1))
sketch13.addConstraint(Sketcher.Constraint("Coincident", 5, 2, 0, 1))
sketch13.addConstraint(Sketcher.Constraint("Vertical", 0))
sketch13.addConstraint(Sketcher.Constraint("Horizontal", 2))
sketch13.addConstraint(Sketcher.Constraint("Vertical", 4))
sketch13.addConstraint(Sketcher.Constraint("Horizontal", 5))
sketch13.addConstraint(Sketcher.Constraint("Equal", 1, 3))
sketch13.addConstraint(Sketcher.Constraint("Radius", 1, Q("0.09 mm")))
sketch13.addConstraint(Sketcher.Constraint("DistanceX", 5, 2, 5, 1, Q("0.2 mm")))
sketch13.addConstraint(Sketcher.Constraint("DistanceY", 0, 2, 0, 1, Q("0.21 mm")))
sketch13.addConstraint(Sketcher.Constraint("DistanceX", -1, 1, 0, 2, Q("0.3 mm")))
sketch13.addConstraint(Sketcher.Constraint("DistanceY", -1, 1, 1, 2, Q("0.5 mm")))
sketch13.setExpression("Constraints[11]", "Params.sketch13_radius")
sketch13.setExpression("Constraints[12]", "Params.sketch13_width")
sketch13.setExpression("Constraints[13]", "Params.sketch13_height")
pad11 = body11.newObject("PartDesign::Pad", "Pad010")
pad11.Profile = sketch13
pad11.setExpression("Length", "Params.pad11_length")
body12 = doc.addObject("PartDesign::Body", "Body011")

sketch14 = body12.newObject("Sketcher::SketchObject", "Sketch013")
sketch14.AttachmentSupport = (doc.getObject("XY_Plane011"), [""])
sketch14.MapMode = "FlatFace"
add_polygon(sketch14, [(-0.5, 0.8), (-0.5, 0.5), (-0.3, 0.5), (-0.3, 0.8)])
sketch14.addConstraint(Sketcher.Constraint("Vertical", 0))
sketch14.addConstraint(Sketcher.Constraint("Horizontal", 1))
sketch14.addConstraint(Sketcher.Constraint("Vertical", 2))
sketch14.addConstraint(Sketcher.Constraint("Horizontal", 3))
sketch14.addConstraint(Sketcher.Constraint("DistanceX", 1, 1, 1, 2, Q("0.2 mm")))
sketch14.addConstraint(Sketcher.Constraint("DistanceY", 0, 2, 0, 1, Q("0.3 mm")))
sketch14.addConstraint(Sketcher.Constraint("DistanceX", 0, 2, -1, 1, Q("0.5 mm")))
sketch14.addConstraint(Sketcher.Constraint("DistanceY", -1, 1, 0, 2, Q("0.5 mm")))
sketch14.setExpression("Constraints[8]", "Params.sketch14_width")
sketch14.setExpression("Constraints[9]", "Params.sketch14_height")
pad12 = body12.newObject("PartDesign::Pad", "Pad011")
pad12.Profile = sketch14
pad12.setExpression("Length", "Params.pad12_length")

doc.recompute()
